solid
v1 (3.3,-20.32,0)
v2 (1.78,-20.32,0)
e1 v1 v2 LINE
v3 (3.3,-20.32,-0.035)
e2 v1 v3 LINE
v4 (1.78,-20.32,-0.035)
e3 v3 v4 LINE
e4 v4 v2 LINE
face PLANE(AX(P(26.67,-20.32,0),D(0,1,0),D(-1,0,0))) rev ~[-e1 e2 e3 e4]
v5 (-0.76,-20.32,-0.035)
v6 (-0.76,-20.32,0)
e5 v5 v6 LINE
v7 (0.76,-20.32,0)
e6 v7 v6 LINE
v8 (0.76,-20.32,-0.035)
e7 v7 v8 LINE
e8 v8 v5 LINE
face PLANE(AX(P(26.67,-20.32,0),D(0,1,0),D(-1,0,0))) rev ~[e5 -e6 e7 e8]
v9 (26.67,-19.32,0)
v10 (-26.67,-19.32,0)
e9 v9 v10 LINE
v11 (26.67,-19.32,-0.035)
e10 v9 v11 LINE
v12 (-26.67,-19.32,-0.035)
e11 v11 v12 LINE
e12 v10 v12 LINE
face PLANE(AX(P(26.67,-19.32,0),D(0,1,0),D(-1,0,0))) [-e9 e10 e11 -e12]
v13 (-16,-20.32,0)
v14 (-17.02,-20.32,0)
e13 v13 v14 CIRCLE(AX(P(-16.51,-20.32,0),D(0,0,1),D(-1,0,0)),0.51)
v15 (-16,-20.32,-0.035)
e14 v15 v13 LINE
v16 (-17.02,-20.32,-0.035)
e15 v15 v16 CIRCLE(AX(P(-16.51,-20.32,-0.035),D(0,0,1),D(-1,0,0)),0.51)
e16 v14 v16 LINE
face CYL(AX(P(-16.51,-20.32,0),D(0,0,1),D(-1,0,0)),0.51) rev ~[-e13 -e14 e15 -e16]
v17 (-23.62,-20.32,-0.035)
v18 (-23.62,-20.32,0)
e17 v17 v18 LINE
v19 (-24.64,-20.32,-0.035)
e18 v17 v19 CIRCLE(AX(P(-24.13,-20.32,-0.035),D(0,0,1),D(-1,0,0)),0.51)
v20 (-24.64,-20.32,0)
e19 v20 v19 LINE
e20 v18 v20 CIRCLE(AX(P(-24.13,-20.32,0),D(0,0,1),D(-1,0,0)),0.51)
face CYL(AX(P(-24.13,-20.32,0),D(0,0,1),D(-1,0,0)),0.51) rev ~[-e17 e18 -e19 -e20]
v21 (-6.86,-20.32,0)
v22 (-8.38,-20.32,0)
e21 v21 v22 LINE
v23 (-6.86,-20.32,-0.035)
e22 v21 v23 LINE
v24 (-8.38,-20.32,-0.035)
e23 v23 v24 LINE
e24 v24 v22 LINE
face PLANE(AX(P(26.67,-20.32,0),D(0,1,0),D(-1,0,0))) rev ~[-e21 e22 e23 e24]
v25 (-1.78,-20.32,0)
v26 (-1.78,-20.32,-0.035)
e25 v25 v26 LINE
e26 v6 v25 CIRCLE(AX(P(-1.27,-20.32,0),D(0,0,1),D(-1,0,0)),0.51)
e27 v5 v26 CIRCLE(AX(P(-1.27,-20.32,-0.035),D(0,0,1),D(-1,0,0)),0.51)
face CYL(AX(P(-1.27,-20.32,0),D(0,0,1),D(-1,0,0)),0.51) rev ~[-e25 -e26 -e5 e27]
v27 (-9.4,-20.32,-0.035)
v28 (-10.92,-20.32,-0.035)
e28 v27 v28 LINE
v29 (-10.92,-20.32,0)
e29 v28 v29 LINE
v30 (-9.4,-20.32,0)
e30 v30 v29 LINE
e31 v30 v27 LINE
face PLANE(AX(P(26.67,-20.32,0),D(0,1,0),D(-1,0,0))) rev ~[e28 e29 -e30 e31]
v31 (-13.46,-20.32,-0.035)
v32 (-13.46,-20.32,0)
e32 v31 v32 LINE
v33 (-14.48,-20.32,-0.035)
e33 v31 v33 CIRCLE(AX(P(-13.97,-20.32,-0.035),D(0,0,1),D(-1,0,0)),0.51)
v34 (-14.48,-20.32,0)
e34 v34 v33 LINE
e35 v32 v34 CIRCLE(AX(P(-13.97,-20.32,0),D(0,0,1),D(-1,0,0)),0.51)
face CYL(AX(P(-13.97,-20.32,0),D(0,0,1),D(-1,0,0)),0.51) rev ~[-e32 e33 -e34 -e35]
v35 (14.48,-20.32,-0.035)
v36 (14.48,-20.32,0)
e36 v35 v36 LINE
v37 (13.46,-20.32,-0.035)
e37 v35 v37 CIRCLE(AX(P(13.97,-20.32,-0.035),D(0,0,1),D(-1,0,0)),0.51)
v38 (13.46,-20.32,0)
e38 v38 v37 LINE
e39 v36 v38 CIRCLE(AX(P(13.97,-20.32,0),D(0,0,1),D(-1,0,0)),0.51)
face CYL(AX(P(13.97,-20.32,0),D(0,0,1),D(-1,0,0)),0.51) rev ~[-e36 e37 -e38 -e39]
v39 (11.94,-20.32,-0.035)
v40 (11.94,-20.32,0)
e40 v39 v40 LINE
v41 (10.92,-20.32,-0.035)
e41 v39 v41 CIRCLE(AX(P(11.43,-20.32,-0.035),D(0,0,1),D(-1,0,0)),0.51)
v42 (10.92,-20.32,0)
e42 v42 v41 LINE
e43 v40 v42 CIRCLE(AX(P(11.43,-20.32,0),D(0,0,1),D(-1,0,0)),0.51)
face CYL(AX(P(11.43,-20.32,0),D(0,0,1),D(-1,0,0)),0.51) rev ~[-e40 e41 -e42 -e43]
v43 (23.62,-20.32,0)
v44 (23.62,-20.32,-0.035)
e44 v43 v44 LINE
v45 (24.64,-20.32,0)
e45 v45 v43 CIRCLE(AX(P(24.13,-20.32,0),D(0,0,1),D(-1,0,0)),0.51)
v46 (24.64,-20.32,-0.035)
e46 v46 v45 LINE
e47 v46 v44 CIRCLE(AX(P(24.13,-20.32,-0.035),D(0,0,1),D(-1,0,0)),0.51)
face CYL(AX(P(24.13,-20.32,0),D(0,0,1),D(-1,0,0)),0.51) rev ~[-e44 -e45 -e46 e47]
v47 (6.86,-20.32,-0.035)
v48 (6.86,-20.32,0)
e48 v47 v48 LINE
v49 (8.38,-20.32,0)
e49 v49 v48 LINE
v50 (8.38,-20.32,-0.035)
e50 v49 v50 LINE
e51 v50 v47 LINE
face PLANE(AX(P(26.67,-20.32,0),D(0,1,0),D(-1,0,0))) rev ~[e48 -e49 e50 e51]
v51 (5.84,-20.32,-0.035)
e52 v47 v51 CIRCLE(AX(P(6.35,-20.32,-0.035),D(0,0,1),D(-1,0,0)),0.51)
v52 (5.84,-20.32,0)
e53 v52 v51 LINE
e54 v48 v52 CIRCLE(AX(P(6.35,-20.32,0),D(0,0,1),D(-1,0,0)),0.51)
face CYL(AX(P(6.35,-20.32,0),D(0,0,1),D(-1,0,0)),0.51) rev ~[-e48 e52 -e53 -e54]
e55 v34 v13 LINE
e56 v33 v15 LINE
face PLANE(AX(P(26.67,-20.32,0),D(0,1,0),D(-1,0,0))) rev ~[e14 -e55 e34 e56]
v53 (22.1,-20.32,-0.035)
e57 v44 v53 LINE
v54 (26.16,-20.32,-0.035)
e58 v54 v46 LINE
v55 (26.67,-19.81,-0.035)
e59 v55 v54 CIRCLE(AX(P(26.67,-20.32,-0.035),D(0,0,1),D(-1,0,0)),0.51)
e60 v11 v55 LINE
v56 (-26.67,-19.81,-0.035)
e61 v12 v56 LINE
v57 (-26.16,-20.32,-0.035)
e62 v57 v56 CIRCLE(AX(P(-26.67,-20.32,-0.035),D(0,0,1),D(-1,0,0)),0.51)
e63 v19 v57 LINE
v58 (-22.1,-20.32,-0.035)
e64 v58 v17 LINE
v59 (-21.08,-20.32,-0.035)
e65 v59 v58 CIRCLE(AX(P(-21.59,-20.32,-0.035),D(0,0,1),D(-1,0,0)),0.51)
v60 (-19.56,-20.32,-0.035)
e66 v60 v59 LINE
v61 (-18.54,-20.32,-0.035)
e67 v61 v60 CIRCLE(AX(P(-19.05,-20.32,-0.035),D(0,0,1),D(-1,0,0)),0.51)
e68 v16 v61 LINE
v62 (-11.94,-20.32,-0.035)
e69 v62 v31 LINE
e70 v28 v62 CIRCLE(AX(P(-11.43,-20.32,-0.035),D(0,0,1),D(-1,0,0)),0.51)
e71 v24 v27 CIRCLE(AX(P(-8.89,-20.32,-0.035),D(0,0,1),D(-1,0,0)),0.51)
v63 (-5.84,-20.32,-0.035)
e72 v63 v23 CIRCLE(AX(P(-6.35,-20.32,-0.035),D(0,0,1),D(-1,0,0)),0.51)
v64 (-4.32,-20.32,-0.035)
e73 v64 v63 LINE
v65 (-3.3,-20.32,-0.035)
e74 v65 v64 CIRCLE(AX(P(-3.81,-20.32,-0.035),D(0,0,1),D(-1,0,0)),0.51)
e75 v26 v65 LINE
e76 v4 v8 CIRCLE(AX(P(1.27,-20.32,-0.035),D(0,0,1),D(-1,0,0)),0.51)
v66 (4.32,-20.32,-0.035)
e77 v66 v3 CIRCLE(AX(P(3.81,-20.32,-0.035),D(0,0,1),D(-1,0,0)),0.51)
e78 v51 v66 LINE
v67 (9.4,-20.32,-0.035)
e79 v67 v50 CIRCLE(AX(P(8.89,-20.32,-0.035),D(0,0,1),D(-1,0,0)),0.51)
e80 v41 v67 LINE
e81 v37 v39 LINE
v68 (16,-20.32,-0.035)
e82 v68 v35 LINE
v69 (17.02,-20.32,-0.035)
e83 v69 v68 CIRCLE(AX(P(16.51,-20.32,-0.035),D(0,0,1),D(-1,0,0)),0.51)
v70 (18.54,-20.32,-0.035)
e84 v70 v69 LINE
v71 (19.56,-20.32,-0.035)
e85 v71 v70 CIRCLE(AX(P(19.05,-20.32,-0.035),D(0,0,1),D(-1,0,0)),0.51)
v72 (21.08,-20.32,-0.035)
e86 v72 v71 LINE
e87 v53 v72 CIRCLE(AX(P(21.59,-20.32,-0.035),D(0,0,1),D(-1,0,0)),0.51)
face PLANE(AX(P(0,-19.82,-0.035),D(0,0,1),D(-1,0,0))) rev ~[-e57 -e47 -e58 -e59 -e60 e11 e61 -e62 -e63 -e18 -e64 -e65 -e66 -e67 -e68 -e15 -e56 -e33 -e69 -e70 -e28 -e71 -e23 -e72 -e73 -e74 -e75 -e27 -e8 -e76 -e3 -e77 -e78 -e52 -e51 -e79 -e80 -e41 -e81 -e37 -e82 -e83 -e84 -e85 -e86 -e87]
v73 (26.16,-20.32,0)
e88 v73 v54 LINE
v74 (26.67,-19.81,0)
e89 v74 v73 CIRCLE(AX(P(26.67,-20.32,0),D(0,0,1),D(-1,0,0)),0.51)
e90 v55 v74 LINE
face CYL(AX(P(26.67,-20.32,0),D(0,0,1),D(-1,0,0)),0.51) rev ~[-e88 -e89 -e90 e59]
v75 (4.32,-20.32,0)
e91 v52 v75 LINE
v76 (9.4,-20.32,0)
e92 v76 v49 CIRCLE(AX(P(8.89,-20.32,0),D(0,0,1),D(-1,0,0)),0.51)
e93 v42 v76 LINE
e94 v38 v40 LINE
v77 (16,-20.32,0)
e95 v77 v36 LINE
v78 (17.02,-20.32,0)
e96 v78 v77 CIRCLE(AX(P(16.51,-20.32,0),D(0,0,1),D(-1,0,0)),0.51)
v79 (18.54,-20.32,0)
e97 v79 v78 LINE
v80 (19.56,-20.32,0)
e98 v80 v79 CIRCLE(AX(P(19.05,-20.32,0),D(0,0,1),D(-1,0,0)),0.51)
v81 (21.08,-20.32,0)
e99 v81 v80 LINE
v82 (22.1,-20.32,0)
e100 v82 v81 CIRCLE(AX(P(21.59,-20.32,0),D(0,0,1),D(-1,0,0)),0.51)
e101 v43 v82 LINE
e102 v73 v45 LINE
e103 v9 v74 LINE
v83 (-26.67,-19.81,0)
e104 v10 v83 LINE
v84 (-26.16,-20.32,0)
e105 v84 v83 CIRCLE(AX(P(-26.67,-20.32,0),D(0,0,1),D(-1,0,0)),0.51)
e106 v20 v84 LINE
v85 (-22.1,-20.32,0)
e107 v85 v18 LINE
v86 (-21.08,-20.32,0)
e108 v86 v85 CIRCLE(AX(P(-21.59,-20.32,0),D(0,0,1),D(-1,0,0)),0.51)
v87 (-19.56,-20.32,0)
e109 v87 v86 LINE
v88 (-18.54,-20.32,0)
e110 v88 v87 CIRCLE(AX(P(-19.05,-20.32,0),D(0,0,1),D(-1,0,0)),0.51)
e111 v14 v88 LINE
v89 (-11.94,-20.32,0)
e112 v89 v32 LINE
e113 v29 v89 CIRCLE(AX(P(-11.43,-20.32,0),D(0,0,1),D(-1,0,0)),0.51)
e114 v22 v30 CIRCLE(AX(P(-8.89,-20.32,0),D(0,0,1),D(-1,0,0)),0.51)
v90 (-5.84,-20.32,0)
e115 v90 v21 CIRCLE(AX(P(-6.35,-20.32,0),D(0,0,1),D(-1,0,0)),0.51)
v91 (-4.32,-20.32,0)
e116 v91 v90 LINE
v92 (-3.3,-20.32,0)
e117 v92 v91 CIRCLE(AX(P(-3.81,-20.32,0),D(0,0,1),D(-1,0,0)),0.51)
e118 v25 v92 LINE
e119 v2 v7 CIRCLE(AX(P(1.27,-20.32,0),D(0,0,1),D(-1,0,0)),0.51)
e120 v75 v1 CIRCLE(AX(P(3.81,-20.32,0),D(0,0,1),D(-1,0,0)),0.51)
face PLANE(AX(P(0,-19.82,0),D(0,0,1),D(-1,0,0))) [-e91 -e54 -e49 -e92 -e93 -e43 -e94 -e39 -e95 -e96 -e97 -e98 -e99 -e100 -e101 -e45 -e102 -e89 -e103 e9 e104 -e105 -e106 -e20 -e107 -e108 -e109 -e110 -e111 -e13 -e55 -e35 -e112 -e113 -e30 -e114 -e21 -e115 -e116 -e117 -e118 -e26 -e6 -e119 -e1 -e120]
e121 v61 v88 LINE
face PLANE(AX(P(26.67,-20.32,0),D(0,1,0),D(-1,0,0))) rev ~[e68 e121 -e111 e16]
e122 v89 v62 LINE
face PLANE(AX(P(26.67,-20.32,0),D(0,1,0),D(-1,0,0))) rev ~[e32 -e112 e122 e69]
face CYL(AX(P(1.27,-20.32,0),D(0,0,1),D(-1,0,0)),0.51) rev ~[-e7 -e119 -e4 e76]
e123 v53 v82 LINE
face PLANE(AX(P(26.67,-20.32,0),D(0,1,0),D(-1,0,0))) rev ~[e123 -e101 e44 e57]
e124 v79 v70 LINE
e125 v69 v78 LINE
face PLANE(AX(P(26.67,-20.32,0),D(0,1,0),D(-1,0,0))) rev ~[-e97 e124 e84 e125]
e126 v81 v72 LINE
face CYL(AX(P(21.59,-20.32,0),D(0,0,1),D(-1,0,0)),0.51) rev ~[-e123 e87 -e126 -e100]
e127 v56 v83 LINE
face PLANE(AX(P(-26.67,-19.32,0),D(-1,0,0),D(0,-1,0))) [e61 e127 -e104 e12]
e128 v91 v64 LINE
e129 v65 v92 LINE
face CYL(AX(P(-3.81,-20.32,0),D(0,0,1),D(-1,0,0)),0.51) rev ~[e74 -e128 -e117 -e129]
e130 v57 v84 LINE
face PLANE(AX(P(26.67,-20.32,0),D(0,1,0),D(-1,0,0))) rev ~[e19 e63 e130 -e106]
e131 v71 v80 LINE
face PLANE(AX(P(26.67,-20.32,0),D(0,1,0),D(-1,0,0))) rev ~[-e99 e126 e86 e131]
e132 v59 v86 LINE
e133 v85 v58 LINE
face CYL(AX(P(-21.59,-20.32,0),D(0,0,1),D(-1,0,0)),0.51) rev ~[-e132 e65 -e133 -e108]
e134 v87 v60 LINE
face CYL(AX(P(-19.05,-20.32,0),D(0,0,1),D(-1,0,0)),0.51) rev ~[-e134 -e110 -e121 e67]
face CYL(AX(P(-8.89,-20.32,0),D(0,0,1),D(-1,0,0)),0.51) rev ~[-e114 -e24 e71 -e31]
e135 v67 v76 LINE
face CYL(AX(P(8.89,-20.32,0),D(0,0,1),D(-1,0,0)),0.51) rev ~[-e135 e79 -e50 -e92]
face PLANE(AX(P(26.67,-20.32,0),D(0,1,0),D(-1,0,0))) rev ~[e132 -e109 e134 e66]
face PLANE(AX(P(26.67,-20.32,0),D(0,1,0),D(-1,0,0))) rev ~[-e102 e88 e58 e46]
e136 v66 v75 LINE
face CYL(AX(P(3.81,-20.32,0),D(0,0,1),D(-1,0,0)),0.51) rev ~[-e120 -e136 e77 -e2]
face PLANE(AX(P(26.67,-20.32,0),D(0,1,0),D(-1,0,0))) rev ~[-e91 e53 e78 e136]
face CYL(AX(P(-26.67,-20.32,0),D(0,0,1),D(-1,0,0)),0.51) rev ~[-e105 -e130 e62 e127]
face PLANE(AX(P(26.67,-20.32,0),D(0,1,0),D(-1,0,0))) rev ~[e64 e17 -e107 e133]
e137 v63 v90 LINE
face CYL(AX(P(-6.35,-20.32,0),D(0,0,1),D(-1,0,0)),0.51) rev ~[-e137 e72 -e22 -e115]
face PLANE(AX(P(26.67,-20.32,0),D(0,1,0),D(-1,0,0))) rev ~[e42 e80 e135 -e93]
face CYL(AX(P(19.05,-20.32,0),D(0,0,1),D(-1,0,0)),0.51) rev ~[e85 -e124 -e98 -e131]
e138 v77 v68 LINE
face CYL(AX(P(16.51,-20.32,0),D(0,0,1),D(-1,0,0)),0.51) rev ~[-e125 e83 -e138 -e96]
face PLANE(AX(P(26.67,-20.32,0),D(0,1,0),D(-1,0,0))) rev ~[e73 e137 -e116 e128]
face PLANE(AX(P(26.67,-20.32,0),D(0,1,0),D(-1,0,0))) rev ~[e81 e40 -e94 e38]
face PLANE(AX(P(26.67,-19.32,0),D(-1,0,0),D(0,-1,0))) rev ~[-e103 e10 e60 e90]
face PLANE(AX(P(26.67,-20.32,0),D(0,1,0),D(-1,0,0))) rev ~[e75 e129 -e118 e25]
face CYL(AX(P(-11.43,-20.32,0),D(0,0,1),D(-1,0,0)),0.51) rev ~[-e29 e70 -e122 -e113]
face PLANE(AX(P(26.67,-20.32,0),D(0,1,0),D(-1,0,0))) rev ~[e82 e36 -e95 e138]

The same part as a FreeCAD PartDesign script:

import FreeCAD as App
import Part
import Sketcher
from FreeCAD import Vector
Q = App.Units.Quantity

doc = App.newDocument("Part")
body = doc.addObject("PartDesign::Body", "Body")

# Sketch on XY plane
sketch1 = doc.addObject("Sketcher::SketchObject", "Sketch")
body.addObject(sketch1)
sketch1.AttachmentSupport = (doc.XY_Plane, [""])
sketch1.MapMode = "FlatFace"
sketch1.addGeometry([
    Part.LineSegment(Vector(-26.7, 20.3, 0), Vector(-26.7, 19.3, 0)),
    Part.LineSegment(Vector(-26.7, 19.3, 0), Vector(26.7, 19.3, 0)),
    Part.LineSegment(Vector(26.7, 19.3, 0), Vector(26.7, 20.3, 0)),
    Part.LineSegment(Vector(26.7, 20.3, 0), Vector(-26.7, 20.3, 0)),
], False)
sketch1.addConstraint([
    Sketcher.Constraint("Coincident", 0, 2, 1, 1),
    Sketcher.Constraint("Coincident", 1, 2, 2, 1),
    Sketcher.Constraint("Coincident", 2, 2, 3, 1),
    Sketcher.Constraint("Coincident", 3, 2, 0, 1),
    Sketcher.Constraint("Vertical", 0),
    Sketcher.Constraint("Horizontal", 1),
    Sketcher.Constraint("Vertical", 2),
    Sketcher.Constraint("Horizontal", 3),
    Sketcher.Constraint("DistanceY", 0, 2, 0, 1, Q("1 mm")),
    Sketcher.Constraint("DistanceX", 1, 1, 1, 2, Q("53.34 mm")),
    Sketcher.Constraint("DistanceX", 0, 2, -1, 1, Q("26.67 mm")),
    Sketcher.Constraint("DistanceY", -1, 1, 0, 2, Q("19.32 mm")),
])
pad1 = doc.addObject("PartDesign::Pad", "Pad")
body.addObject(pad1)
pad1.Profile = sketch1
pad1.Length = 0.035
pad1.Reversed = True

# Sketch on XY plane
sketch2 = doc.addObject("Sketcher::SketchObject", "Sketch001")
body.addObject(sketch2)
sketch2.AttachmentSupport = (doc.XY_Plane, [""])
sketch2.MapMode = "FlatFace"
sketch2.addGeometry(Part.Circle(Vector(-26.7, 20.3, 0), Vector(0, 0, 1), 0.5), False)
sketch2.addConstraint([
    Sketcher.Constraint("Diameter", 0, Q("1.02 mm")),
    Sketcher.Constraint("DistanceX", 0, 3, -1, 1, Q("26.67 mm")),
    Sketcher.Constraint("DistanceY", -1, 1, 0, 3, Q("20.32 mm")),
])
pocket1 = doc.addObject("PartDesign::Pocket", "Pocket")
body.addObject(pocket1)
pocket1.Profile = sketch2
pocket1.Type = "ThroughAll"
doc.recompute()

linearpattern = doc.addObject("PartDesign::LinearPattern", "LinearPattern")
body.addObject(linearpattern)
linearpattern.Originals = [pocket1]
linearpattern.Direction = (doc.X_Axis, [""])
linearpattern.Mode = "offset"
linearpattern.Offset = 2.54
linearpattern.Occurrences = 22
body.Tip = linearpattern
body2 = doc.addObject("PartDesign::Body", "Body001")
doc.recompute()

body.Placement = App.Placement(Vector(0, 0, 0), App.Rotation(Vector(0, 0, 1), 180))
boolean = doc.addObject("PartDesign::Boolean", "Boolean")
body2.addObject(boolean)
boolean.Type = "Fuse"
boolean.addObjects([body])

doc.recompute()
